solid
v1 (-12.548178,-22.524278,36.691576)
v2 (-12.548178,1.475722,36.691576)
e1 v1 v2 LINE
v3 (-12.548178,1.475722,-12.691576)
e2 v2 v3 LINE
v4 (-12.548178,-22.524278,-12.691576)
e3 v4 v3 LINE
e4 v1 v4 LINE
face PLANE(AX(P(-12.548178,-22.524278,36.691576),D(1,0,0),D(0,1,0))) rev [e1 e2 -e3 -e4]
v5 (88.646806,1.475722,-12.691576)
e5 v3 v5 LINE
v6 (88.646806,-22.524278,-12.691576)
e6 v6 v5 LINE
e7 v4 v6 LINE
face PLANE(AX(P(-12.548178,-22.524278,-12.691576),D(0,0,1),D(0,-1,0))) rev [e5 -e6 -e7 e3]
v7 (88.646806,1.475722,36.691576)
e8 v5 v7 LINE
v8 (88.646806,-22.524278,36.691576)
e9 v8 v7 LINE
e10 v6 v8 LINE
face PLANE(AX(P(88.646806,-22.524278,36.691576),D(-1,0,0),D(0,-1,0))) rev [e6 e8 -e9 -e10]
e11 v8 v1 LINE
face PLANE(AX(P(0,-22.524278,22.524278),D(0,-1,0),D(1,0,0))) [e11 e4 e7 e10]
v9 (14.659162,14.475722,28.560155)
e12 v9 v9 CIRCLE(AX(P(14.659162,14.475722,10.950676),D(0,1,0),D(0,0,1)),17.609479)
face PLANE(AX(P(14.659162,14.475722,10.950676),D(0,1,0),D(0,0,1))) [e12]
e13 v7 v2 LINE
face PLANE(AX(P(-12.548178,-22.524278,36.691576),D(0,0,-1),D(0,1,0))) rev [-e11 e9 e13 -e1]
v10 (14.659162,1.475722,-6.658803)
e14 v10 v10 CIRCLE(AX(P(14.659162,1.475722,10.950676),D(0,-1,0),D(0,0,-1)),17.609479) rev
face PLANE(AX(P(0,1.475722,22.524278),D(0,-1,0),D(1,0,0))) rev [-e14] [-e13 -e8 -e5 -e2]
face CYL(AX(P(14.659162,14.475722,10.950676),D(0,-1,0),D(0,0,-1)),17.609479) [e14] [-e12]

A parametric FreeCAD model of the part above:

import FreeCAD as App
import Part
import Sketcher

V = App.Vector
Q = App.Units.Quantity

doc = App.newDocument("Part")
body = doc.addObject("PartDesign::Body", "Body")

# Sketch on XY plane
sketch1 = body.newObject("Sketcher::SketchObject", "Sketch")
sketch1.AttachmentSupport = (doc.getObject("XY_Plane"), [""])
sketch1.MapMode = "FlatFace"
sketch1.addGeometry([
    Part.LineSegment(V(-13, 14, 0), V(-13, -35, 0)),
    Part.LineSegment(V(-13, -35, 0), V(89, -35, 0)),
    Part.LineSegment(V(89, -35, 0), V(89, 14, 0)),
    Part.LineSegment(V(89, 14, 0), V(-13, 14, 0)),
], False)
sketch1.addConstraint([
    Sketcher.Constraint("Coincident", 0, 2, 1, 1),
    Sketcher.Constraint("Coincident", 1, 2, 2, 1),
    Sketcher.Constraint("Coincident", 2, 2, 3, 1),
    Sketcher.Constraint("Coincident", 3, 2, 0, 1),
    Sketcher.Constraint("Vertical", 0),
    Sketcher.Constraint("Horizontal", 1),
    Sketcher.Constraint("Vertical", 2),
    Sketcher.Constraint("Horizontal", 3),
    Sketcher.Constraint("DistanceX", 1, 1, 1, 2, Q("101.194984 mm")),
    Sketcher.Constraint("DistanceY", 0, 2, 0, 1, Q("49.383152 mm")),
    Sketcher.Constraint("DistanceX", 0, 2, -1, 1, Q("12.548178 mm")),
    Sketcher.Constraint("DistanceY", 0, 2, -1, 1, Q("35.215854 mm")),
])
pad1 = body.newObject("PartDesign::Pad", "Pad")
pad1.Profile = sketch1
pad1.Length = 24
body2 = doc.addObject("PartDesign::Body", "Body001")
doc.recompute()

body.Placement = App.Placement(V(0, 1.475722, 22.524278), App.Rotation(V(1, 0, 0), 90))
boolean = body2.newObject("PartDesign::Boolean", "Boolean")
boolean.Type = "Fuse"
boolean.addObjects([body])

# Sketch on XZ plane
sketch2 = body2.newObject("Sketcher::SketchObject", "Sketch001")
sketch2.AttachmentSupport = (doc.getObject("XZ_Plane001"), [""])
sketch2.MapMode = "FlatFace"
sketch2.AttachmentOffset = App.Placement(V(0, 0, -1.475722), App.Rotation())
sketch2.addGeometry(Part.Circle(V(15, 11, 0), V(0, 0, 1), 18), False)
sketch2.addConstraint([
    Sketcher.Constraint("Diameter", 0, Q("35.218958 mm")),
    Sketcher.Constraint("DistanceX", -1, 1, 0, 3, Q("14.659162 mm")),
    Sketcher.Constraint("DistanceY", -1, 1, 0, 3, Q("10.950676 mm")),
])
pad2 = body2.newObject("PartDesign::Pad", "Pad001")
pad2.Profile = sketch2
pad2.Length = 13
pad2.Reversed = True

doc.recompute()
